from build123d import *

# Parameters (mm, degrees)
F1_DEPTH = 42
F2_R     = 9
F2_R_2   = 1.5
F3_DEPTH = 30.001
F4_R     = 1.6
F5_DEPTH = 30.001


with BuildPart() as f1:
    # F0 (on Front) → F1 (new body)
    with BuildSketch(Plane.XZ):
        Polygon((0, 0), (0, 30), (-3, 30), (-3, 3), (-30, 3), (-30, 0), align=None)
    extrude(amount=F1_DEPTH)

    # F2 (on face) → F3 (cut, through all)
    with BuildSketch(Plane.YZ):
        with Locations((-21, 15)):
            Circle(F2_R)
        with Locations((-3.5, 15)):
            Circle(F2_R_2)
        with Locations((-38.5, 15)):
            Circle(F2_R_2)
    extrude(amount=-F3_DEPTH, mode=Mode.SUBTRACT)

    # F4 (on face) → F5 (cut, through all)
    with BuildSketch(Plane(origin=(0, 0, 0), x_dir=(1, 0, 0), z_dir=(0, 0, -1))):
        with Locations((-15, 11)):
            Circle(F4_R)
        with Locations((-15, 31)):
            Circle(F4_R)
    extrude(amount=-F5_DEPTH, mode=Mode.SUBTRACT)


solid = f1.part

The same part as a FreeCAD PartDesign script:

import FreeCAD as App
import Part
import Sketcher

V = App.Vector


def add_polygon(sketch, points):
    """Adds a closed chain of lines whose ends are joined by coincident constraints."""
    first, n = sketch.GeometryCount, len(points)
    for a, b in zip(points, points[1:] + points[:1]):
        sketch.addGeometry(Part.LineSegment(App.Vector(*a, 0), App.Vector(*b, 0)), False)
    for i in range(n):
        sketch.addConstraint(Sketcher.Constraint("Coincident", first + i, 2, first + (i + 1) % n, 1))

doc = App.newDocument("Part")
body = doc.addObject("PartDesign::Body", "Body")

# Sketch on XZ plane
sketch1 = body.newObject("Sketcher::SketchObject", "Sketch")
sketch1.AttachmentSupport = (doc.getObject("XZ_Plane"), [""])
sketch1.MapMode = "FlatFace"
add_polygon(sketch1, [(0, 0), (0, 30), (-3, 30), (-3, 3), (-30, 3), (-30, 0)])  # lines 0-5
sketch1.addConstraint([
    Sketcher.Constraint("Vertical", 0),
    Sketcher.Constraint("Horizontal", 1),
    Sketcher.Constraint("Vertical", 2),
    Sketcher.Constraint("Horizontal", 3),
    Sketcher.Constraint("Vertical", 4),
    Sketcher.Constraint("Horizontal", 5),
    Sketcher.Constraint("Coincident", 5, 2, -1, 1),
    Sketcher.Constraint("Equal", 5, 0),
    Sketcher.Constraint("Equal", 3, 2),
    Sketcher.Constraint("DistanceX", 1, 2, 1, 1, 3.0),
    Sketcher.Constraint("DistanceX", 3, 2, 3, 1, 27.0),
])
pad1 = body.newObject("PartDesign::Pad", "Pad")
pad1.Profile = sketch1
pad1.Length = 42

# Sketch on YZ plane
sketch2 = body.newObject("Sketcher::SketchObject", "Sketch001")
sketch2.AttachmentSupport = (doc.getObject("YZ_Plane"), [""])
sketch2.MapMode = "FlatFace"
sketch2.addGeometry([
    Part.Circle(V(-21, 15, 0), V(0, 0, 1), 9),
    Part.Circle(V(-3.5, 15, 0), V(0, 0, 1), 1.5),
    Part.Circle(V(-38.5, 15, 0), V(0, 0, 1), 1.5),
], False)
sketch2.addConstraint([
    Sketcher.Constraint("Equal", 1, 2),
    Sketcher.Constraint("Horizontal", 0, 3, 1, 3),
    Sketcher.Constraint("Horizontal", 1, 3, 2, 3),
    Sketcher.Constraint("Diameter", 0, 18.0),
    Sketcher.Constraint("Diameter", 1, 3.0),
    Sketcher.Constraint("DistanceX", 0, 3, -1, 1, 21.0),
    Sketcher.Constraint("DistanceY", -1, 1, 0, 3, 15.0),
    Sketcher.Constraint("DistanceX", 2, 3, 1, 3, 35.0),
    Sketcher.Constraint("DistanceX", 1, 3, -1, 1, 3.5),
])
pocket1 = body.newObject("PartDesign::Pocket", "Pocket")
pocket1.Profile = sketch2
pocket1.Type = "ThroughAll"

# Sketch on XY plane
sketch3 = body.newObject("Sketcher::SketchObject", "Sketch002")
sketch3.AttachmentSupport = (doc.getObject("XY_Plane"), [""])
sketch3.MapMode = "FlatFace"
sketch3.addGeometry([
    Part.Circle(V(-15, -11, 0), V(0, 0, 1), 1.6),
    Part.Circle(V(-15, -31, 0), V(0, 0, 1), 1.6),
], False)
sketch3.addConstraint([
    Sketcher.Constraint("Equal", 0, 1),
    Sketcher.Constraint("Vertical", 0, 3, 1, 3),
    Sketcher.Constraint("Diameter", 0, 3.2),
    Sketcher.Constraint("DistanceX", 0, 3, -1, 1, 15.0),
    Sketcher.Constraint("DistanceY", 0, 3, -1, 1, 11.0),
    Sketcher.Constraint("DistanceY", 1, 3, -1, 1, 31.0),
])
pocket2 = body.newObject("PartDesign::Pocket", "Pocket001")
pocket2.Profile = sketch3
pocket2.Type = "ThroughAll"
pocket2.Reversed = True

doc.recompute()
